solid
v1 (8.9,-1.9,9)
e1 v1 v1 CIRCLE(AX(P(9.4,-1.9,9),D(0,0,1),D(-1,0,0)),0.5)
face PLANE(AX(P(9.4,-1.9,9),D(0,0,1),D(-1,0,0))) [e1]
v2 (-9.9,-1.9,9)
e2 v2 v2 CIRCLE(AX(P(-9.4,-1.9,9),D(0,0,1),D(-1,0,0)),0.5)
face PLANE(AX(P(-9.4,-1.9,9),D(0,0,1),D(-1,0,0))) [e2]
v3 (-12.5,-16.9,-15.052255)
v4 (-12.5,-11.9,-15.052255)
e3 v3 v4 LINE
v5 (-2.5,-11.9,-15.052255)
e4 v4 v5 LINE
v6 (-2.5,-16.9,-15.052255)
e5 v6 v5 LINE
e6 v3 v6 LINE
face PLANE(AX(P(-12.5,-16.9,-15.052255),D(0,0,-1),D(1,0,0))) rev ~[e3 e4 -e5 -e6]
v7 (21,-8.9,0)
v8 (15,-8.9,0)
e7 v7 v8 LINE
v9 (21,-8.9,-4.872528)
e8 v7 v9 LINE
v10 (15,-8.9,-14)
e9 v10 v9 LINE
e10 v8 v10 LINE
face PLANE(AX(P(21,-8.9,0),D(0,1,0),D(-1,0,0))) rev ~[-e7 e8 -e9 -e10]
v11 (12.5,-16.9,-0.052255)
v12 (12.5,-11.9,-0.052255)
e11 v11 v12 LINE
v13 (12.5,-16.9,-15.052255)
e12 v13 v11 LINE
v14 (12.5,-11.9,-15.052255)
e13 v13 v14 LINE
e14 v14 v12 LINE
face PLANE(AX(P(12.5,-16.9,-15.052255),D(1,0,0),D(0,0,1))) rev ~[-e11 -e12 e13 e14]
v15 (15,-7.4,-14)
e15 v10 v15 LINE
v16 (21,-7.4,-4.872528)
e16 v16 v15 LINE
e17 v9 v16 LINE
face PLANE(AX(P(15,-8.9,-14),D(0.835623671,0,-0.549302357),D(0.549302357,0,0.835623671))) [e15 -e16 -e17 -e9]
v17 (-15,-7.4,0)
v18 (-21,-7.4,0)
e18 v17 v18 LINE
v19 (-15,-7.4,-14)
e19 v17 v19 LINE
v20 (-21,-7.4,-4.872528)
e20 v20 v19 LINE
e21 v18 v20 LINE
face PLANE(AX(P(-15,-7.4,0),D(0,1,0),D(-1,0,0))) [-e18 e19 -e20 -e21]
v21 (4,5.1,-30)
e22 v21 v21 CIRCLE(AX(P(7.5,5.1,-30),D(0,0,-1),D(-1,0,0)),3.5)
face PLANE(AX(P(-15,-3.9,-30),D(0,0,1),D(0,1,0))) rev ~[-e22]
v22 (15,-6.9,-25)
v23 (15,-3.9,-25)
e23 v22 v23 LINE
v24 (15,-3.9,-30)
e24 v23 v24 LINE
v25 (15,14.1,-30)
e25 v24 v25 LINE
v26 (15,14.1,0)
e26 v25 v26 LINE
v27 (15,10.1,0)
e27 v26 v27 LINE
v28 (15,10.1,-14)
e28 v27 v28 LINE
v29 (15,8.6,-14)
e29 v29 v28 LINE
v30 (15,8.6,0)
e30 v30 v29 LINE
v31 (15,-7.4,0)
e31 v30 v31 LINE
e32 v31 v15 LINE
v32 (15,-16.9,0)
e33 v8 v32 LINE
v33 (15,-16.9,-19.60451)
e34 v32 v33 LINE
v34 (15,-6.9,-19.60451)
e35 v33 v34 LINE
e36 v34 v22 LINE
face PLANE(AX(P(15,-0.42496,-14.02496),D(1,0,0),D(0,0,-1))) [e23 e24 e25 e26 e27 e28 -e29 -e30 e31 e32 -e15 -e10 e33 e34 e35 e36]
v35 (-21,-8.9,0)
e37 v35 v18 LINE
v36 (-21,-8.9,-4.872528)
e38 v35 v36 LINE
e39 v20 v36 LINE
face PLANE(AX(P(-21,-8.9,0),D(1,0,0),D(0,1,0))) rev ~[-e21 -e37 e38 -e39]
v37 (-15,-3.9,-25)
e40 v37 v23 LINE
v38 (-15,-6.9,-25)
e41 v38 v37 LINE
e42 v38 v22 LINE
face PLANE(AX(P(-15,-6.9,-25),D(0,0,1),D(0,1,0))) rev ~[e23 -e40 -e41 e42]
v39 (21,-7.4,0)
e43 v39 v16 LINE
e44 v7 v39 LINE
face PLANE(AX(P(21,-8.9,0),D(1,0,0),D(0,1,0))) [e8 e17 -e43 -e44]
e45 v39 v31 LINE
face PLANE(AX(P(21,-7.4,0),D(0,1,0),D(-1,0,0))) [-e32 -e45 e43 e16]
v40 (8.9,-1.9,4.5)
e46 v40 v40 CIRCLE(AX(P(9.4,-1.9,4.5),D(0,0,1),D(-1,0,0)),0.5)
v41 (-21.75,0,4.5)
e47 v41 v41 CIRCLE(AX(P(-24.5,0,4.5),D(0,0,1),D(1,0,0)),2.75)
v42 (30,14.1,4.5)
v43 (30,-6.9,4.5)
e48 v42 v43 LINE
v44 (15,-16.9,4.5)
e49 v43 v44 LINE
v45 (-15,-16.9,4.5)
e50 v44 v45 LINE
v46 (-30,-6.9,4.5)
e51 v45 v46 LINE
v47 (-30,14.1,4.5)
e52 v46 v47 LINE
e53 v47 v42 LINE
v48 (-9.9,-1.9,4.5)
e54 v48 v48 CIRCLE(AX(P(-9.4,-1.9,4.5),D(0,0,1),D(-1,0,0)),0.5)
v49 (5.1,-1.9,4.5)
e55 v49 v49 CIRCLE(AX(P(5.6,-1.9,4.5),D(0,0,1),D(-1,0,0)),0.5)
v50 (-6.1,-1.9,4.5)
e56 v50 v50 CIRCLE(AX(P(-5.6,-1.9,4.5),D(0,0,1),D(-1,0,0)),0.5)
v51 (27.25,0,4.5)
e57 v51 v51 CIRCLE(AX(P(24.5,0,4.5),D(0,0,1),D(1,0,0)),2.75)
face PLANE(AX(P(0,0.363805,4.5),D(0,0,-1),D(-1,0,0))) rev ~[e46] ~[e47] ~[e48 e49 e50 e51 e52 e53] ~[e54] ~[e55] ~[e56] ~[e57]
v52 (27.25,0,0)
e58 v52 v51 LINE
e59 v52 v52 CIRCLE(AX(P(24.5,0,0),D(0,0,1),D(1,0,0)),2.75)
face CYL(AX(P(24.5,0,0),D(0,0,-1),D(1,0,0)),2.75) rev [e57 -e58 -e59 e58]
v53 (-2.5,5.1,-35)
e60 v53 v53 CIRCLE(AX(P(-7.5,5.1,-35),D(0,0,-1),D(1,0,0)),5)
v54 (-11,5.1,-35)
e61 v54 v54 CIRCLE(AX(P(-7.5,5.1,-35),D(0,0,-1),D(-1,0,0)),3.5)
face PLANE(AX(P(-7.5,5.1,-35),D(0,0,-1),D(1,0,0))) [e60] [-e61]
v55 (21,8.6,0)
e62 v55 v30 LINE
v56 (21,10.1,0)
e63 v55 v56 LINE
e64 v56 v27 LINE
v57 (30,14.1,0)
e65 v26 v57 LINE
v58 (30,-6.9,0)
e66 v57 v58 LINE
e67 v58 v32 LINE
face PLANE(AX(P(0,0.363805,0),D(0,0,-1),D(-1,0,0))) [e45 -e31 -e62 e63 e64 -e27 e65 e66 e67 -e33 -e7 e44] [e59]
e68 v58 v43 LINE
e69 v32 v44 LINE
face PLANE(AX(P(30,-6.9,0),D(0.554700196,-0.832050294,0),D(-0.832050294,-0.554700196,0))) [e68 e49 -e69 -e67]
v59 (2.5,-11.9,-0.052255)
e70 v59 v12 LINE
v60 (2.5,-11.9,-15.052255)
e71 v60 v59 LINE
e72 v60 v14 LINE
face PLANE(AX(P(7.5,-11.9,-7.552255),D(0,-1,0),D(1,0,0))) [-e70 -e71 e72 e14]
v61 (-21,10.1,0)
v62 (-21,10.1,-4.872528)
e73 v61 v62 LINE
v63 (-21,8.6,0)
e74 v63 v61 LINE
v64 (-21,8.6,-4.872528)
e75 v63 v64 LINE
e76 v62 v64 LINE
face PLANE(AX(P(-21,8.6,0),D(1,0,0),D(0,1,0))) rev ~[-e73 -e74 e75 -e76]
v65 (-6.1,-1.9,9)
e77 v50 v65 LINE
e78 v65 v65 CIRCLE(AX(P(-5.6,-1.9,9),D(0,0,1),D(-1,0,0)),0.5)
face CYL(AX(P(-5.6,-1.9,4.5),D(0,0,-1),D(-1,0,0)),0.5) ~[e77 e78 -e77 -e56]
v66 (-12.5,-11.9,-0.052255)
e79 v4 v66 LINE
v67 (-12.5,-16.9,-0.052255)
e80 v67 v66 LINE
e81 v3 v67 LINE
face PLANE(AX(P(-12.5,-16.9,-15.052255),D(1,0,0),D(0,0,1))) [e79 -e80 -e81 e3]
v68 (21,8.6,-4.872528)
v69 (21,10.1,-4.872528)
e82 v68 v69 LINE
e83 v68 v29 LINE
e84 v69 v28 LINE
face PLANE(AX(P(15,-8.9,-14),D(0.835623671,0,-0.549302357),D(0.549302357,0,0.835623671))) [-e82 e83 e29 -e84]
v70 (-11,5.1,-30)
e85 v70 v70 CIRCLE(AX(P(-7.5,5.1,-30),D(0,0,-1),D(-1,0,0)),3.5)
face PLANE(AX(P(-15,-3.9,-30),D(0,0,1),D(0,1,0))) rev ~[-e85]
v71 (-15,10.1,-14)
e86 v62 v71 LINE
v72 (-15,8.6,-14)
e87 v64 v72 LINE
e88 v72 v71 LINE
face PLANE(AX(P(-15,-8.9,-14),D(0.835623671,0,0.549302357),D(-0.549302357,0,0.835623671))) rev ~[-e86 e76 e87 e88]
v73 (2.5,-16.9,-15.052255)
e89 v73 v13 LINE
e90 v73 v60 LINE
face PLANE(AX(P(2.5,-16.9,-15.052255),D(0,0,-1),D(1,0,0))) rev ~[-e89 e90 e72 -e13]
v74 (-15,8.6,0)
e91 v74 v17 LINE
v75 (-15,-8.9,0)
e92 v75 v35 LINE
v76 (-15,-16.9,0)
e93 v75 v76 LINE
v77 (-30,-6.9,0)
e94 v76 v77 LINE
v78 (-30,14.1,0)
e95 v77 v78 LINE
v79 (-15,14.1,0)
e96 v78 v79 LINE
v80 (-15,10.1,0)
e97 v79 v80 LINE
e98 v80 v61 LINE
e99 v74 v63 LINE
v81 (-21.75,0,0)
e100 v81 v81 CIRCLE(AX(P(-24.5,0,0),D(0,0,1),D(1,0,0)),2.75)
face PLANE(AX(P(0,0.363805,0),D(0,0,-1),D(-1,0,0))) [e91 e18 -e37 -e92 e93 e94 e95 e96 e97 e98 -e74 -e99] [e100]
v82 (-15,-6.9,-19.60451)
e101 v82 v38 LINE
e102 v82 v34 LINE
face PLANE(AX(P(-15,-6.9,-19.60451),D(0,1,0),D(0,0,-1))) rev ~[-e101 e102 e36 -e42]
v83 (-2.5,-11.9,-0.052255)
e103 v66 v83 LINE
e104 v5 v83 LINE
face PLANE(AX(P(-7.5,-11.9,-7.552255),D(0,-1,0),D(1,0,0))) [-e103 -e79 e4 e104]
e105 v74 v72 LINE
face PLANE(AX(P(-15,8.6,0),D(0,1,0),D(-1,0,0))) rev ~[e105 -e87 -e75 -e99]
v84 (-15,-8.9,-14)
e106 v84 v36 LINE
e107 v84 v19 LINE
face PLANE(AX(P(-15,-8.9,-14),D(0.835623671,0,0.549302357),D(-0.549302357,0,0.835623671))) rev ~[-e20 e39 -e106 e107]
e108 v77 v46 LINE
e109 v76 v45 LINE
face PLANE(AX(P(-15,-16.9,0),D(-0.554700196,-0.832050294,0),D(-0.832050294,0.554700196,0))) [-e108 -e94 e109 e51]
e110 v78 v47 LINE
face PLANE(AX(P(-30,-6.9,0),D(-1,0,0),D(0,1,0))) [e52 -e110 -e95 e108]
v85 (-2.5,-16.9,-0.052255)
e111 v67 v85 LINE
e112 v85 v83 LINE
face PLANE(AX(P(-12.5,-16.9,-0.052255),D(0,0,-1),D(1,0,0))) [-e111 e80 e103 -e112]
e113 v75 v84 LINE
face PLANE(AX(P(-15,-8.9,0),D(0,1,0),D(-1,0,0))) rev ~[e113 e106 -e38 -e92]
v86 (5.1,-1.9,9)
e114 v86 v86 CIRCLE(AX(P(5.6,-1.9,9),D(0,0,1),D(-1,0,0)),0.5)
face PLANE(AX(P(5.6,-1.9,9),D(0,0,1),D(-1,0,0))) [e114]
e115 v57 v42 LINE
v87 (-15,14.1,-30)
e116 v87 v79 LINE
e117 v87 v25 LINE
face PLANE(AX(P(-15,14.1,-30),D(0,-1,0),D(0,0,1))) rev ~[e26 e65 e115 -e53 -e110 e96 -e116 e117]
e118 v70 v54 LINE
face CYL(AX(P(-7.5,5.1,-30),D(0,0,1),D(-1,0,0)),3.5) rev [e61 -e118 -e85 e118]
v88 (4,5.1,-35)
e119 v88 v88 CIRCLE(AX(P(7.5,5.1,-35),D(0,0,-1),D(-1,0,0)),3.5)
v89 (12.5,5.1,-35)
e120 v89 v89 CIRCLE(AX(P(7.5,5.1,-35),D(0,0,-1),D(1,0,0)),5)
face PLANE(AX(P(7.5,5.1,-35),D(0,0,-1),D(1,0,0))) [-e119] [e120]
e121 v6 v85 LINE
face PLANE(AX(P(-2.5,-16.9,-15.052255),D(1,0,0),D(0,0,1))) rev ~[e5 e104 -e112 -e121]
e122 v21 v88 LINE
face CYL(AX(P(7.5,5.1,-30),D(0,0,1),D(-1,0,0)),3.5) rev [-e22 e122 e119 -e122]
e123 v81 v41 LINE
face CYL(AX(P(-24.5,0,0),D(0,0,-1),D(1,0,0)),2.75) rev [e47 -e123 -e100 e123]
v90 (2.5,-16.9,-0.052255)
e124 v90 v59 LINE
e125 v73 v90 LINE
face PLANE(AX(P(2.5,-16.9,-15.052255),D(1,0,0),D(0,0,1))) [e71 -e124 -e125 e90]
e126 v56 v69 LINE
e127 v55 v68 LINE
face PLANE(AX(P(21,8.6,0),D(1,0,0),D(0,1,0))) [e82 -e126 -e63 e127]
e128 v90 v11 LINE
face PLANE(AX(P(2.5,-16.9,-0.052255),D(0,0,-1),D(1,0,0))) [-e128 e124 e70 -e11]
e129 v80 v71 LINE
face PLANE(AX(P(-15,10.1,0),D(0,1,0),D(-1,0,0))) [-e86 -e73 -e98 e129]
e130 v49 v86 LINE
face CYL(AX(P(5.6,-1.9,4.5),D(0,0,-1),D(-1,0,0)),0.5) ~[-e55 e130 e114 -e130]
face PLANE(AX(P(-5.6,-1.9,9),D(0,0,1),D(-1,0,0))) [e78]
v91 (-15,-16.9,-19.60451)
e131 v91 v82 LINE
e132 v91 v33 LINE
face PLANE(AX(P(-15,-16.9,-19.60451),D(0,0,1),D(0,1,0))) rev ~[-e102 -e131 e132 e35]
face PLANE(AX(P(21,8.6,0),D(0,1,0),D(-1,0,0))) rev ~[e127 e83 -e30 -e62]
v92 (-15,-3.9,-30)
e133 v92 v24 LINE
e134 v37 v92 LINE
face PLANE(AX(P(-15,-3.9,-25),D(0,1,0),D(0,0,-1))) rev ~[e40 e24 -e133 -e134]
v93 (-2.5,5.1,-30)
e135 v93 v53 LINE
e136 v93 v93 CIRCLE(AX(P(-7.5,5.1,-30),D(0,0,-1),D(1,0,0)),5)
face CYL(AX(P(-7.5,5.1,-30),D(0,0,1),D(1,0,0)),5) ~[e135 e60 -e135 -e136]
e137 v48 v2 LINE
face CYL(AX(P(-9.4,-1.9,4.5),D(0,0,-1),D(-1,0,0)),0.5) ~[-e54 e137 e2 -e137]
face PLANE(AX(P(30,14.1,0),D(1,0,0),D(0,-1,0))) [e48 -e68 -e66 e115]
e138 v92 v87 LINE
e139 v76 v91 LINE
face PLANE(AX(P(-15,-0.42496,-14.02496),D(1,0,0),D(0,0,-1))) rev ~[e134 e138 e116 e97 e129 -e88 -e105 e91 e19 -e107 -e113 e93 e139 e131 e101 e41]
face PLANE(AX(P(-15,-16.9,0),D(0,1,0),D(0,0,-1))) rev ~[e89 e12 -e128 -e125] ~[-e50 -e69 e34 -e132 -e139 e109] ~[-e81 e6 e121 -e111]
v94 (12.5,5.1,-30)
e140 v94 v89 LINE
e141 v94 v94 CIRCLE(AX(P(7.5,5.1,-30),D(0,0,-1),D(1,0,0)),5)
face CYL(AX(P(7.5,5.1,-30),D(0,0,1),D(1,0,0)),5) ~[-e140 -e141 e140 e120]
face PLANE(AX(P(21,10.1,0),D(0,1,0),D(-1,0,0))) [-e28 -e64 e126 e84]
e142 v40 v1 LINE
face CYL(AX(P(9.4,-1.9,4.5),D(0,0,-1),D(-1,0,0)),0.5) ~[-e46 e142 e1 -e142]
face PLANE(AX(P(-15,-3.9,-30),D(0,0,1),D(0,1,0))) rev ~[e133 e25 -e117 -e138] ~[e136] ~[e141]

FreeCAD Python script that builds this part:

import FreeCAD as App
import Part
import Sketcher

V = App.Vector
Q = App.Units.Quantity


def add_polygon(sketch, points):
    """Adds a closed chain of lines whose ends are joined by coincident constraints."""
    first, n = sketch.GeometryCount, len(points)
    for a, b in zip(points, points[1:] + points[:1]):
        sketch.addGeometry(Part.LineSegment(App.Vector(*a, 0), App.Vector(*b, 0)), False)
    for i in range(n):
        sketch.addConstraint(Sketcher.Constraint("Coincident", first + i, 2, first + (i + 1) % n, 1))

doc = App.newDocument("Part")
body = doc.addObject("PartDesign::Body", "Body")

# Sketch on XY plane
sketch1 = body.newObject("Sketcher::SketchObject", "Sketch")
sketch1.AttachmentSupport = (doc.getObject("XY_Plane"), [""])
sketch1.MapMode = "FlatFace"
add_polygon(sketch1, [(-30, -6.9), (-15, -16.9), (15, -16.9), (30, -6.9), (30, 14.1), (-30, 14.1)])  # lines 0-5
sketch1.addGeometry(Part.Circle(V(24.5, 0, 0), V(0, 0, 1), 2.8), False)  # 6
sketch1.addGeometry(Part.Circle(V(-24.5, 0, 0), V(0, 0, 1), 2.8), False)  # 7
sketch1.addConstraint([
    Sketcher.Constraint("Horizontal", 1),
    Sketcher.Constraint("Vertical", 3),
    Sketcher.Constraint("Horizontal", 4),
    Sketcher.Constraint("Vertical", 5),
    Sketcher.Constraint("Equal", 6, 7),
    Sketcher.Constraint("Symmetric", 6, 3, 7, 3, -1, 1),
    Sketcher.Constraint("Symmetric", 2, 2, 5, 2, -2),
    Sketcher.Constraint("PointOnObject", 6, 3, -1),
    Sketcher.Constraint("Equal", 0, 2),
    Sketcher.Constraint("Diameter", 6, Q("5.5 mm")),
    Sketcher.Constraint("DistanceX", 1, 1, 1, 2, Q("30 mm")),
    Sketcher.Constraint("DistanceX", 4, 2, 4, 1, Q("60 mm")),
    Sketcher.Constraint("DistanceY", 3, 1, 3, 2, Q("21 mm")),
    Sketcher.Constraint("DistanceX", 7, 3, 6, 3, Q("49 mm")),
    Sketcher.Constraint("DistanceY", 1, 2, 2, 2, Q("10 mm")),
    Sketcher.Constraint("DistanceY", 0, 2, -1, 1, Q("16.9 mm")),
])
pad1 = body.newObject("PartDesign::Pad", "Pad")
pad1.Profile = sketch1
pad1.Length = 4.5

# Sketch on YZ plane
sketch2 = body.newObject("Sketcher::SketchObject", "Sketch001")
sketch2.AttachmentSupport = (doc.getObject("YZ_Plane"), [""])
sketch2.MapMode = "FlatFace"
add_polygon(sketch2, [(-16.9, 0), (-16.9, -19.6), (-6.9, -19.6), (-6.9, -25), (-3.9, -25), (-3.9, -30), (14.1, -30), (14.1, 0)])  # lines 0-7
sketch2.addConstraint([
    Sketcher.Constraint("Vertical", 0),
    Sketcher.Constraint("Horizontal", 1),
    Sketcher.Constraint("Vertical", 2),
    Sketcher.Constraint("Horizontal", 3),
    Sketcher.Constraint("Vertical", 4),
    Sketcher.Constraint("Horizontal", 5),
    Sketcher.Constraint("Vertical", 6),
    Sketcher.Constraint("Horizontal", 7),
    Sketcher.Constraint("PointOnObject", 6, 2, -1),
    Sketcher.Constraint("DistanceX", 1, 1, 1, 2, Q("10 mm")),
    Sketcher.Constraint("DistanceX", 3, 1, 3, 2, Q("3 mm")),
    Sketcher.Constraint("DistanceX", 5, 1, 5, 2, Q("18 mm")),
    Sketcher.Constraint("DistanceY", 4, 2, 4, 1, Q("5 mm")),
    Sketcher.Constraint("DistanceY", 6, 1, 6, 2, Q("30 mm")),
    Sketcher.Constraint("DistanceX", 0, 2, -1, 1, Q("16.9 mm")),
    Sketcher.Constraint("DistanceY", 0, 2, 0, 1, Q("19.60451 mm")),
])
pad2 = body.newObject("PartDesign::Pad", "Pad001")
pad2.Profile = sketch2
pad2.Type = "TwoLengths"
pad2.Length = 15
pad2.Length2 = 15

# Sketch on XY plane
sketch3 = body.newObject("Sketcher::SketchObject", "Sketch002")
sketch3.AttachmentSupport = (doc.getObject("XY_Plane"), [""])
sketch3.MapMode = "FlatFace"
sketch3.AttachmentOffset = App.Placement(V(0, 0, -30), App.Rotation())
sketch3.addGeometry([
    Part.Circle(V(7.5, 5.1, 0), V(0, 0, 1), 5),
    Part.Circle(V(7.5, 5.1, 0), V(0, 0, 1), 3.5),
    Part.Circle(V(-7.5, 5.1, 0), V(0, 0, 1), 5),
    Part.Circle(V(-7.5, 5.1, 0), V(0, 0, 1), 3.5),
], False)
sketch3.addConstraint([
    Sketcher.Constraint("Coincident", 1, 3, 0, 3),
    Sketcher.Constraint("Coincident", 3, 3, 2, 3),
    Sketcher.Constraint("Equal", 0, 2),
    Sketcher.Constraint("Equal", 1, 3),
    Sketcher.Constraint("Symmetric", 0, 3, 2, 3, -2),
    Sketcher.Constraint("Diameter", 0, Q("10 mm")),
    Sketcher.Constraint("Diameter", 1, Q("7 mm")),
    Sketcher.Constraint("DistanceX", 2, 3, 0, 3, Q("15 mm")),
    Sketcher.Constraint("DistanceY", -1, 1, 0, 3, Q("5.1 mm")),
])
pad3 = body.newObject("PartDesign::Pad", "Pad002")
pad3.Profile = sketch3
pad3.Length = 5
pad3.Reversed = True

# Sketch on XZ plane
sketch4 = body.newObject("Sketcher::SketchObject", "Sketch003")
sketch4.AttachmentSupport = (doc.getObject("XZ_Plane"), [""])
sketch4.MapMode = "FlatFace"
sketch4.AttachmentOffset = App.Placement(V(0, 0, 16.9), App.Rotation())
add_polygon(sketch4, [(2, 0), (2, -15), (12, -15), (12, 0)])  # lines 0-3
add_polygon(sketch4, [(-12, 0), (-12, -15), (-2, -15), (-2, 0)])  # lines 4-7
sketch4.addConstraint([
    Sketcher.Constraint("Vertical", 0),
    Sketcher.Constraint("Horizontal", 1),
    Sketcher.Constraint("Vertical", 2),
    Sketcher.Constraint("Horizontal", 3),
    Sketcher.Constraint("Vertical", 4),
    Sketcher.Constraint("Horizontal", 5),
    Sketcher.Constraint("Vertical", 6),
    Sketcher.Constraint("Horizontal", 7),
    Sketcher.Constraint("Symmetric", 1, 2, 4, 2, -2),
    Sketcher.Constraint("Symmetric", 3, 2, 6, 2, -2),
    Sketcher.Constraint("DistanceX", 1, 1, 1, 2, Q("10 mm")),
    Sketcher.Constraint("DistanceY", 0, 2, 0, 1, Q("15 mm")),
    Sketcher.Constraint("DistanceX", 4, 2, 0, 2, Q("15 mm")),
    Sketcher.Constraint("DistanceY", 0, 2, -1, 1, Q("15.052255 mm")),
])
pocket1 = body.newObject("PartDesign::Pocket", "Pocket")
pocket1.Profile = sketch4
pocket1.Length = 5

# Sketch on XY plane
sketch5 = body.newObject("Sketcher::SketchObject", "Sketch004")
sketch5.AttachmentSupport = (doc.getObject("XY_Plane"), [""])
sketch5.MapMode = "FlatFace"
sketch5.AttachmentOffset = App.Placement(V(0, 0, 4.5), App.Rotation())
sketch5.addGeometry([
    Part.Circle(V(-9.4, -1.9, 0), V(0, 0, 1), 0.5),
    Part.Circle(V(-5.6, -1.9, 0), V(0, 0, 1), 0.5),
    Part.Circle(V(5.6, -1.9, 0), V(0, 0, 1), 0.5),
    Part.Circle(V(9.4, -1.9, 0), V(0, 0, 1), 0.5),
], False)
sketch5.addConstraint([
    Sketcher.Constraint("Equal", 0, 1),
    Sketcher.Constraint("Equal", 1, 2),
    Sketcher.Constraint("Equal", 2, 3),
    Sketcher.Constraint("Symmetric", 1, 3, 2, 3, -2),
    Sketcher.Constraint("Symmetric", 0, 3, 3, 3, -2),
    Sketcher.Constraint("Horizontal", 0, 3, 1, 3),
    Sketcher.Constraint("Diameter", 0, Q("1 mm")),
    Sketcher.Constraint("DistanceX", 0, 3, 2, 3, Q("15 mm")),
    Sketcher.Constraint("DistanceX", 0, 3, -1, 1, Q("9.4 mm")),
    Sketcher.Constraint("DistanceY", 0, 3, -1, 1, Q("1.9 mm")),
])
pad4 = body.newObject("PartDesign::Pad", "Pad003")
pad4.Profile = sketch5
pad4.Length = 4.5

# Sketch on XY plane
sketch6 = body.newObject("Sketcher::SketchObject", "Sketch005")
sketch6.AttachmentSupport = (doc.getObject("XY_Plane"), [""])
sketch6.MapMode = "FlatFace"
add_polygon(sketch6, [(21, -7.4), (21, -8.9), (15, -8.9), (15, -7.4)])  # lines 0-3
add_polygon(sketch6, [(21, 10.1), (21, 8.6), (15, 8.6), (15, 10.1)])  # lines 4-7
add_polygon(sketch6, [(-15, 10.1), (-15, 8.6), (-21, 8.6), (-21, 10.1)])  # lines 8-11
add_polygon(sketch6, [(-15, -7.4), (-15, -8.9), (-21, -8.9), (-21, -7.4)])  # lines 12-15
sketch6.addConstraint([
    Sketcher.Constraint("Vertical", 0),
    Sketcher.Constraint("Horizontal", 1),
    Sketcher.Constraint("Vertical", 2),
    Sketcher.Constraint("Horizontal", 3),
    Sketcher.Constraint("Vertical", 4),
    Sketcher.Constraint("Horizontal", 5),
    Sketcher.Constraint("Vertical", 6),
    Sketcher.Constraint("Horizontal", 7),
    Sketcher.Constraint("Vertical", 8),
    Sketcher.Constraint("Horizontal", 9),
    Sketcher.Constraint("Vertical", 10),
    Sketcher.Constraint("Horizontal", 11),
    Sketcher.Constraint("Vertical", 12),
    Sketcher.Constraint("Horizontal", 13),
    Sketcher.Constraint("Vertical", 14),
    Sketcher.Constraint("Horizontal", 15),
    Sketcher.Constraint("Symmetric", 5, 2, 8, 2, -2),
    Sketcher.Constraint("Symmetric", 7, 2, 10, 2, -2),
    Sketcher.Constraint("Symmetric", 1, 2, 12, 2, -2),
    Sketcher.Constraint("Symmetric", 3, 2, 14, 2, -2),
    Sketcher.Constraint("Vertical", 3, 2, 4, 2),
    Sketcher.Constraint("Vertical", 2, 2, 5, 2),
    Sketcher.Constraint("Equal", 2, 4),
    Sketcher.Constraint("DistanceX", 1, 2, 1, 1, Q("6 mm")),
    Sketcher.Constraint("DistanceY", 0, 2, 0, 1, Q("1.5 mm")),
    Sketcher.Constraint("DistanceX", -1, 1, 0, 2, Q("21 mm")),
    Sketcher.Constraint("DistanceY", 3, 2, 4, 2, Q("16 mm")),
    Sketcher.Constraint("DistanceY", 0, 2, -1, 1, Q("8.9 mm")),
])
pad5 = body.newObject("PartDesign::Pad", "Pad004")
pad5.Profile = sketch6
pad5.Length = 14
pad5.Reversed = True

# Sketch on XZ plane
sketch7 = body.newObject("Sketcher::SketchObject", "Sketch006")
sketch7.AttachmentSupport = (doc.getObject("XZ_Plane"), [""])
sketch7.MapMode = "FlatFace"
sketch7.AttachmentOffset = App.Placement(V(0, 0, 8.9), App.Rotation())
add_polygon(sketch7, [(22, -3), (15, -14), (22, -17)])  # lines 0-2
add_polygon(sketch7, [(-22, -17), (-15, -14), (-22, -3)])  # lines 3-5
sketch7.addConstraint([
    Sketcher.Constraint("Vertical", 2),
    Sketcher.Constraint("Vertical", 5),
    Sketcher.Constraint("Symmetric", 0, 2, 3, 2, -2),
    Sketcher.Constraint("Symmetric", 2, 2, 4, 2, -2),
    Sketcher.Constraint("Horizontal", 1, 2, 5, 2),
    Sketcher.Constraint("DistanceX", -1, 1, 0, 2, Q("15 mm")),
    Sketcher.Constraint("DistanceY", 0, 2, -1, 1, Q("14 mm")),
    Sketcher.Constraint("Distance", 1, Q("7.897351 mm")),
    Sketcher.Constraint("DistanceY", 2, 1, 2, 2, Q("14.214653 mm")),
    Sketcher.Constraint("DistanceX", -1, 1, 1, 2, Q("22.174859 mm")),
])
pocket2 = body.newObject("PartDesign::Pocket", "Pocket001")
pocket2.Profile = sketch7
pocket2.Length = 20

doc.recompute()
